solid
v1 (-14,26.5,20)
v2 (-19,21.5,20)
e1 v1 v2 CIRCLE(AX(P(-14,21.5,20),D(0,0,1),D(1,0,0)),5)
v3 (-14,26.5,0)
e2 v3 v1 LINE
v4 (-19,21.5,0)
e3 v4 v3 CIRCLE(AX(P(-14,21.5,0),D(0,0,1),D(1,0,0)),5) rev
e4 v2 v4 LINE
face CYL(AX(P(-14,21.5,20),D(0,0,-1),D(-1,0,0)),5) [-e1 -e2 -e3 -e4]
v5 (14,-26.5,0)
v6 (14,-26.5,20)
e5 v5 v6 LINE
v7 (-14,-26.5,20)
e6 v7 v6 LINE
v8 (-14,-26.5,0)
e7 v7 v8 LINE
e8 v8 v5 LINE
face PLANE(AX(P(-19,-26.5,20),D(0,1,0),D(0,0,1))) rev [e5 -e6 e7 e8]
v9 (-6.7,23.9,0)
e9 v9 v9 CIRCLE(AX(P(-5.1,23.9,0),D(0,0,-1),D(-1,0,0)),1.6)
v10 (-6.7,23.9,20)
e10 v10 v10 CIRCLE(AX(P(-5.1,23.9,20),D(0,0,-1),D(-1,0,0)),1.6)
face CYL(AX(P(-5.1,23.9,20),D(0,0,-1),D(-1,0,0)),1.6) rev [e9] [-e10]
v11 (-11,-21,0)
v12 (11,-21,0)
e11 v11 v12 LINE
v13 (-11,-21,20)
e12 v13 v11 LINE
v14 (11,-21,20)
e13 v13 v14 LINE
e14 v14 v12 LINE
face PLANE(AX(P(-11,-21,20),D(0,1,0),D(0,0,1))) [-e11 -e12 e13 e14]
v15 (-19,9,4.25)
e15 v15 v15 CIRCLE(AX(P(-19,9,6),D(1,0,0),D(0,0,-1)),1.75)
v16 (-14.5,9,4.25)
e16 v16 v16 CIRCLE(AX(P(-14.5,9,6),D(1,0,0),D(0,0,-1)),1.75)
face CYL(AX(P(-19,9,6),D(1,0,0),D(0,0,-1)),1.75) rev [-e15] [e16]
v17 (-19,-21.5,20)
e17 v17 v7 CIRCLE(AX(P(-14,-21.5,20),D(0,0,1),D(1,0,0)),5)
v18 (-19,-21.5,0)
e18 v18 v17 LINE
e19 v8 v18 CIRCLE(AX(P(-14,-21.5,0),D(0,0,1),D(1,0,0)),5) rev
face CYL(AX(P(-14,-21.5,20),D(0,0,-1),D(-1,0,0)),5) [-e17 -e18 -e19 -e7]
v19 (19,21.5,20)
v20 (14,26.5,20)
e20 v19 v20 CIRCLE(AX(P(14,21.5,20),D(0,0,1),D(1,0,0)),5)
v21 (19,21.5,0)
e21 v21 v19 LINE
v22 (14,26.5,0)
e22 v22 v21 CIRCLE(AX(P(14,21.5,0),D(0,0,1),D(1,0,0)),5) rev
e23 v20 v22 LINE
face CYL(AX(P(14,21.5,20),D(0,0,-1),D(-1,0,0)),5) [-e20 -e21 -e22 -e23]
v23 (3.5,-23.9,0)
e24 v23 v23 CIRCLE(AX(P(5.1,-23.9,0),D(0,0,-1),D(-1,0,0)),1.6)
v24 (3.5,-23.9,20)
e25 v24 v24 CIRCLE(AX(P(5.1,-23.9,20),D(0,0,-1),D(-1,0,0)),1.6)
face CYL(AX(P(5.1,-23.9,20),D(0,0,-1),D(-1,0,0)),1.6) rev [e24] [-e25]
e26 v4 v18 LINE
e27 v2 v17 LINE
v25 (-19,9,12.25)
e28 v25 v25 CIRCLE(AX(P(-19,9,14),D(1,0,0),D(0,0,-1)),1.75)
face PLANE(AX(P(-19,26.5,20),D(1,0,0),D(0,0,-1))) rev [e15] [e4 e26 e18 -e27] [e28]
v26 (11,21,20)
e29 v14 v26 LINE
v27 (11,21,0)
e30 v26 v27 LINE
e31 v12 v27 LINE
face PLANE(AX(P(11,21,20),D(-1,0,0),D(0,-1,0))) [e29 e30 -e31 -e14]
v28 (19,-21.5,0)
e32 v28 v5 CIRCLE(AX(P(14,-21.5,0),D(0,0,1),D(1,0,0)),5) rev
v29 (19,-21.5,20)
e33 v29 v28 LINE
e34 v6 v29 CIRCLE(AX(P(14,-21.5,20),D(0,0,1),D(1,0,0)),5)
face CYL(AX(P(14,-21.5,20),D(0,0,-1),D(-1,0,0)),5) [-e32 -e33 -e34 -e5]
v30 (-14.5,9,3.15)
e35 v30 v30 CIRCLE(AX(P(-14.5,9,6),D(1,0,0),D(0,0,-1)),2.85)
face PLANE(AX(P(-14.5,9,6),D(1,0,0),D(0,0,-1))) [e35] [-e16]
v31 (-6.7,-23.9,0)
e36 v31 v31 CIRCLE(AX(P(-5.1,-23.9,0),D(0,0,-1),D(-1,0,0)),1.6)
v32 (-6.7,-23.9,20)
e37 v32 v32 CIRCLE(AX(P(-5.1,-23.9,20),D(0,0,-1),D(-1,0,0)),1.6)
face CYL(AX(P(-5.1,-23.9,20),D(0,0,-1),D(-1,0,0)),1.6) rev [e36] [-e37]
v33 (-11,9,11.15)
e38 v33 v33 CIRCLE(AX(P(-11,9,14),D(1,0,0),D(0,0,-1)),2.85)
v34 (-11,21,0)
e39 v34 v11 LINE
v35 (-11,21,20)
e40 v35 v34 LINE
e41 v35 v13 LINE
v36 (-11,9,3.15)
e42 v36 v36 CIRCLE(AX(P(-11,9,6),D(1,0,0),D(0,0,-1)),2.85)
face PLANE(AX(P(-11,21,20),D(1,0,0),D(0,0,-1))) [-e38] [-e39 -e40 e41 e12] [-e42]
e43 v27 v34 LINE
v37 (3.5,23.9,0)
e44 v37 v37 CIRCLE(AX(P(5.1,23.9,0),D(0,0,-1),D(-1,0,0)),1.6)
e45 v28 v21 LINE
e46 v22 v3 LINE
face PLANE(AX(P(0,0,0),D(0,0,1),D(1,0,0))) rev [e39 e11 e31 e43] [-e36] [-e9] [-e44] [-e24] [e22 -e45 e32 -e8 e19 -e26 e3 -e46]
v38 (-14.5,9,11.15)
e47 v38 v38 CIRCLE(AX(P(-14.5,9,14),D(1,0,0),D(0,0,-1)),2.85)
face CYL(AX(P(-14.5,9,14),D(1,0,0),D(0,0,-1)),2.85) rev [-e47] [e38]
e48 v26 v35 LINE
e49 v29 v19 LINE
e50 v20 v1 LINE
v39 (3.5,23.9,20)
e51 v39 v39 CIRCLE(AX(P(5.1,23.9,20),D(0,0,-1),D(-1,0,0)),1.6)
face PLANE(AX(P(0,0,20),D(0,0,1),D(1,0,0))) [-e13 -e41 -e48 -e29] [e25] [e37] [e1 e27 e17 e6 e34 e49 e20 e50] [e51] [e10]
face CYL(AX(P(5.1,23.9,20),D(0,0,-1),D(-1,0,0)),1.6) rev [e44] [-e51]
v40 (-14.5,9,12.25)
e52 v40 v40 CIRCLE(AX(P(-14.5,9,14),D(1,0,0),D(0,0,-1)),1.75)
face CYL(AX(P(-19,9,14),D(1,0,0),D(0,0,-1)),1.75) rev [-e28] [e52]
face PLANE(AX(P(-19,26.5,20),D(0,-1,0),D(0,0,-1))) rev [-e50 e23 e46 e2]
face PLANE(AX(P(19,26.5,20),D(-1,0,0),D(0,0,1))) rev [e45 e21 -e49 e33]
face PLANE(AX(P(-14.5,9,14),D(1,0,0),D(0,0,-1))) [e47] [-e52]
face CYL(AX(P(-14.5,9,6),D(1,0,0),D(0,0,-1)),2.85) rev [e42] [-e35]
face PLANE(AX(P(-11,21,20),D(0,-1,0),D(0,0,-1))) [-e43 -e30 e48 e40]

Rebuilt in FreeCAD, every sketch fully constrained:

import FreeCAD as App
import Part
import Sketcher


def edges_at(feature, points):
    """Names of the edges that pass closest to the given points."""
    edges = feature.Shape.Edges
    near = lambda p: min(range(len(edges)), key=lambda i: edges[i].distToShape(Part.Vertex(*p))[0])
    return sorted({f"Edge{near(p) + 1}" for p in points})

doc = App.newDocument("Part")
params = doc.addObject("Spreadsheet::Sheet", "Params")
for row, (alias, value) in enumerate([
    ("sketch1_width", "38 mm"),
    ("sketch1_width2", "22 mm"),
    ("sketch1_height", "53 mm"),
    ("sketch1_height2", "42 mm"),
    ("pad1_length", "20 mm"),
    ("sketch2_diameter", "3.2 mm"),
    ("fillet_radius", "5 mm"),
    ("sketch3_diameter", "3.5 mm"),
    ("sketch4_diameter", "5.7 mm"),
    ("sketch4_diameter2", "3.5 mm"),
    ("pocket3_length", "3.5 mm"),
], start=1):
    params.set(f"A{row}", alias)
    params.set(f"B{row}", "=" + value)
    params.setAlias(f"B{row}", alias)

body = doc.addObject("PartDesign::Body", "Body")

# Sketch on XY plane
sketch1 = body.newObject("Sketcher::SketchObject", "Sketch")
sketch1.AttachmentSupport = (doc.getObject("XY_Plane"), [""])
sketch1.MapMode = "FlatFace"
sketch1.addGeometry([
    Part.LineSegment(App.Vector(-19, 26, 0), App.Vector(-19, -26, 0)),  # 0
    Part.LineSegment(App.Vector(-19, -26, 0), App.Vector(19, -26, 0)),  # 1
    Part.LineSegment(App.Vector(19, -26, 0), App.Vector(19, 26, 0)),  # 2
    Part.LineSegment(App.Vector(19, 26, 0), App.Vector(-19, 26, 0)),  # 3
    Part.LineSegment(App.Vector(11, -21, 0), App.Vector(-11, -21, 0)),  # 4
    Part.LineSegment(App.Vector(-11, -21, 0), App.Vector(-11, 21, 0)),  # 5
    Part.LineSegment(App.Vector(-11, 21, 0), App.Vector(11, 21, 0)),  # 6
    Part.LineSegment(App.Vector(11, 21, 0), App.Vector(11, -21, 0)),  # 7
], False)
sketch1.addConstraint([
    Sketcher.Constraint("Coincident", 0, 2, 1, 1),
    Sketcher.Constraint("Coincident", 1, 2, 2, 1),
    Sketcher.Constraint("Coincident", 2, 2, 3, 1),
    Sketcher.Constraint("Coincident", 3, 2, 0, 1),
    Sketcher.Constraint("Coincident", 4, 2, 5, 1),
    Sketcher.Constraint("Coincident", 5, 2, 6, 1),
    Sketcher.Constraint("Coincident", 6, 2, 7, 1),
    Sketcher.Constraint("Coincident", 7, 2, 4, 1),
    Sketcher.Constraint("Vertical", 0),
    Sketcher.Constraint("Horizontal", 1),
    Sketcher.Constraint("Vertical", 2),
    Sketcher.Constraint("Horizontal", 3),
    Sketcher.Constraint("Horizontal", 4),
    Sketcher.Constraint("Vertical", 5),
    Sketcher.Constraint("Horizontal", 6),
    Sketcher.Constraint("Vertical", 7),
    Sketcher.Constraint("Symmetric", 0, 2, 2, 2, -1, 1),
    Sketcher.Constraint("Symmetric", 4, 2, 6, 2, -1, 1),
    Sketcher.Constraint("DistanceX", 1, 1, 1, 2, 38.0),
    Sketcher.Constraint("DistanceX", 4, 2, 4, 1, 22.0),
    Sketcher.Constraint("DistanceY", 0, 2, 0, 1, 53.0),
    Sketcher.Constraint("DistanceY", 5, 1, 5, 2, 42.0),
])
sketch1.setExpression("Constraints[18]", "Params.sketch1_width")
sketch1.setExpression("Constraints[19]", "Params.sketch1_width2")
sketch1.setExpression("Constraints[20]", "Params.sketch1_height")
sketch1.setExpression("Constraints[21]", "Params.sketch1_height2")
pad1 = body.newObject("PartDesign::Pad", "Pad")
pad1.Profile = sketch1
pad1.setExpression("Length", "Params.pad1_length")

# Sketch on XY plane
sketch2 = body.newObject("Sketcher::SketchObject", "Sketch001")
sketch2.AttachmentSupport = (doc.getObject("XY_Plane"), [""])
sketch2.MapMode = "FlatFace"
sketch2.addGeometry([
    Part.Circle(App.Vector(5.1, -23.9, 0), App.Vector(0, 0, 1), 1.6),
    Part.Circle(App.Vector(-5.1, -23.9, 0), App.Vector(0, 0, 1), 1.6),
    Part.Circle(App.Vector(5.1, 23.9, 0), App.Vector(0, 0, 1), 1.6),
    Part.Circle(App.Vector(-5.1, 23.9, 0), App.Vector(0, 0, 1), 1.6),
], False)
sketch2.addConstraint([
    Sketcher.Constraint("Equal", 0, 1),
    Sketcher.Constraint("Equal", 1, 2),
    Sketcher.Constraint("Equal", 2, 3),
    Sketcher.Constraint("Symmetric", 1, 3, 2, 3, -1, 1),
    Sketcher.Constraint("Symmetric", 0, 3, 3, 3, -1, 1),
    Sketcher.Constraint("Symmetric", 0, 3, 1, 3, -2),
    Sketcher.Constraint("Diameter", 0, 3.2),
    Sketcher.Constraint("DistanceX", -1, 1, 0, 3, 5.1),
    Sketcher.Constraint("DistanceY", 0, 3, -1, 1, 23.9),
])
sketch2.setExpression("Constraints[6]", "Params.sketch2_diameter")
pocket1 = body.newObject("PartDesign::Pocket", "Pocket")
pocket1.Profile = sketch2
pocket1.Type = "ThroughAll"
pocket1.Reversed = True
doc.recompute()

fillet = body.newObject("PartDesign::Fillet", "Fillet")
fillet.Base = (pocket1, edges_at(pocket1, [
    (19, -26.5, 10),
    (-19, -26.5, 10),
    (-19, 26.5, 10),
    (19, 26.5, 10),
]))
fillet.setExpression("Radius", "Params.fillet_radius")

# Sketch on YZ plane
sketch3 = body.newObject("Sketcher::SketchObject", "Sketch002")
sketch3.AttachmentSupport = (doc.getObject("YZ_Plane"), [""])
sketch3.MapMode = "FlatFace"
sketch3.AttachmentOffset = App.Placement(App.Vector(0, 0, -11), App.Rotation())
sketch3.addGeometry([
    Part.Circle(App.Vector(9, 14, 0), App.Vector(0, 0, 1), 1.8),
    Part.Circle(App.Vector(9, 6, 0), App.Vector(0, 0, 1), 1.8),
], False)
sketch3.addConstraint([
    Sketcher.Constraint("Equal", 0, 1),
    Sketcher.Constraint("Vertical", 0, 3, 1, 3),
    Sketcher.Constraint("Diameter", 0, 3.5),
    Sketcher.Constraint("DistanceX", -1, 1, 0, 3, 9.0),
    Sketcher.Constraint("DistanceY", -1, 1, 0, 3, 14.0),
    Sketcher.Constraint("DistanceY", -1, 1, 1, 3, 6.0),
])
sketch3.setExpression("Constraints[2]", "Params.sketch3_diameter")
pocket2 = body.newObject("PartDesign::Pocket", "Pocket001")
pocket2.Profile = sketch3
pocket2.Type = "ThroughAll"

# Sketch on YZ plane
sketch4 = body.newObject("Sketcher::SketchObject", "Sketch003")
sketch4.AttachmentSupport = (doc.getObject("YZ_Plane"), [""])
sketch4.MapMode = "FlatFace"
sketch4.AttachmentOffset = App.Placement(App.Vector(0, 0, -11), App.Rotation())
sketch4.addGeometry([
    Part.Circle(App.Vector(9, 14, 0), App.Vector(0, 0, 1), 2.9),
    Part.Circle(App.Vector(9, 14, 0), App.Vector(0, 0, 1), 1.8),
    Part.Circle(App.Vector(9, 6, 0), App.Vector(0, 0, 1), 2.9),
    Part.Circle(App.Vector(9, 6, 0), App.Vector(0, 0, 1), 1.8),
], False)
sketch4.addConstraint([
    Sketcher.Constraint("Coincident", 1, 3, 0, 3),
    Sketcher.Constraint("Coincident", 3, 3, 2, 3),
    Sketcher.Constraint("Equal", 0, 2),
    Sketcher.Constraint("Equal", 1, 3),
    Sketcher.Constraint("Vertical", 1, 3, 2, 3),
    Sketcher.Constraint("Diameter", 0, 5.7),
    Sketcher.Constraint("Diameter", 1, 3.5),
    Sketcher.Constraint("DistanceX", -1, 1, 0, 3, 9.0),
    Sketcher.Constraint("DistanceY", -1, 1, 0, 3, 14.0),
    Sketcher.Constraint("DistanceY", -1, 1, 2, 3, 6.0),
])
sketch4.setExpression("Constraints[5]", "Params.sketch4_diameter")
sketch4.setExpression("Constraints[6]", "Params.sketch4_diameter2")
pocket3 = body.newObject("PartDesign::Pocket", "Pocket002")
pocket3.Profile = sketch4
pocket3.setExpression("Length", "Params.pocket3_length")

doc.recompute()
